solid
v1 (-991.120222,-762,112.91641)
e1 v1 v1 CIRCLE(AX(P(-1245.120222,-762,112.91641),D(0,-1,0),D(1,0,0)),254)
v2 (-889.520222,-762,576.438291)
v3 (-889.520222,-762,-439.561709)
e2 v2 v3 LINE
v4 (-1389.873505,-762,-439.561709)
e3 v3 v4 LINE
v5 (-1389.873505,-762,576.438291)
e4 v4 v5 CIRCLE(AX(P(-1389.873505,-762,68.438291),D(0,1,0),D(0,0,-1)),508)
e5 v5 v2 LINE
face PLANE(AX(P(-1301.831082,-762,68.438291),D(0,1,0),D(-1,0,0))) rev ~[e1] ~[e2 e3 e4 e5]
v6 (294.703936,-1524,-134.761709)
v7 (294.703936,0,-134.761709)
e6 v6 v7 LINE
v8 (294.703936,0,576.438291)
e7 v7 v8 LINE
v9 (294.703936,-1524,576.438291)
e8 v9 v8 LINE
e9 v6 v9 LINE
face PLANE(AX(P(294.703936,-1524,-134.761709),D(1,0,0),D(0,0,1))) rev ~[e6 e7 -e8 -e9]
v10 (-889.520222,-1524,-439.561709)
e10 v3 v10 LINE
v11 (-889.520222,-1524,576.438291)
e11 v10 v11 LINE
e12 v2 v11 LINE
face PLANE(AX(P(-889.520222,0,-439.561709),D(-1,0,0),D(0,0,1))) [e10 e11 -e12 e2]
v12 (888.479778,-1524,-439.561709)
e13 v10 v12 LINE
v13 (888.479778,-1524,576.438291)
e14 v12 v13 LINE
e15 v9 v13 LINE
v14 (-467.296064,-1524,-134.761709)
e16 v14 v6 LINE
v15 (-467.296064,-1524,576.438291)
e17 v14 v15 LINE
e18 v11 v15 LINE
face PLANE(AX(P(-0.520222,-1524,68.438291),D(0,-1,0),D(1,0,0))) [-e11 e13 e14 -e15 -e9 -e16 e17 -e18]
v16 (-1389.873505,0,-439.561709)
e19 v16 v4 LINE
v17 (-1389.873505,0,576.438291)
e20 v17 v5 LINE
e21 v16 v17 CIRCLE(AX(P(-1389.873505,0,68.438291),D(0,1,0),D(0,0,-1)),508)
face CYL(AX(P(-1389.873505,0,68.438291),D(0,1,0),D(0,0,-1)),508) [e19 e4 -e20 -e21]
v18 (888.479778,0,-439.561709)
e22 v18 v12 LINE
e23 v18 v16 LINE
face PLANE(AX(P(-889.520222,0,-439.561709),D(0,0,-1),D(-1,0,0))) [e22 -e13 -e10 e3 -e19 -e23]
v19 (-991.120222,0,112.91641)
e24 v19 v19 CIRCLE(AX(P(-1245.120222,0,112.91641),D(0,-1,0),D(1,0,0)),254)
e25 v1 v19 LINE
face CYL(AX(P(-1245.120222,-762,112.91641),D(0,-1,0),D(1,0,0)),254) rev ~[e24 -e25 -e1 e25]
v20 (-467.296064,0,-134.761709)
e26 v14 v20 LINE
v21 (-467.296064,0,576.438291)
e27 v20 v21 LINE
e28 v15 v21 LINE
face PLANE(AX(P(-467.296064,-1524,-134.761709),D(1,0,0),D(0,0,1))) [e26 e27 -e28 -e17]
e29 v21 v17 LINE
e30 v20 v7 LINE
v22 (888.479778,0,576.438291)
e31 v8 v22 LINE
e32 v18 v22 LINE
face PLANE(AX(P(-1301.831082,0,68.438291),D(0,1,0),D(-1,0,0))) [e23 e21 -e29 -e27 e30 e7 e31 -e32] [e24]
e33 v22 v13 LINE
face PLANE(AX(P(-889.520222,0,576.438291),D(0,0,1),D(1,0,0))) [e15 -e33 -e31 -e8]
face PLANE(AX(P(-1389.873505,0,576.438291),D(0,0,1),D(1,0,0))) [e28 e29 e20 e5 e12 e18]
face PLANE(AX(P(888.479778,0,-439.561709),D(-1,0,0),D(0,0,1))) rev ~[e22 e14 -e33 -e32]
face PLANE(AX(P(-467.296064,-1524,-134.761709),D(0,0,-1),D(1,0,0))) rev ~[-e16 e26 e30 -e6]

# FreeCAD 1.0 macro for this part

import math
import FreeCAD as App
import Part
import Sketcher

V = App.Vector
Q = App.Units.Quantity

doc = App.newDocument("Part")
params = doc.addObject("Spreadsheet::Sheet", "Params")
for row, (alias, value) in enumerate([
    ("sketch1_width", "70 in"),
    ("sketch1_height", "40 in"),
    ("pad1_length", "60 in"),
    ("sketch2_width", "30 in"),
    ("sketch2_height", "28 in"),
    ("pocket1_length", "60 in"),
    ("sketch3_radius", "20 in"),
    ("pad2_length", "30 in"),
    ("sketch4_diameter", "20 in"),
    ("pocket2_length", "30 in"),
], start=1):
    params.set(f"A{row}", alias)
    params.set(f"B{row}", "=" + value)
    params.setAlias(f"B{row}", alias)

body = doc.addObject("PartDesign::Body", "Body")

# Sketch on XZ plane
sketch1 = body.newObject("Sketcher::SketchObject", "Sketch")
sketch1.AttachmentSupport = (doc.getObject("XZ_Plane"), [""])
sketch1.MapMode = "FlatFace"
sketch1.addGeometry(Part.LineSegment(V(-889.520222, 576.438291, 0), V(-889.520222, -439.561709, 0)), False)
sketch1.addGeometry(Part.LineSegment(V(-889.520222, -439.561709, 0), V(888.479778, -439.561709, 0)), False)
sketch1.addGeometry(Part.LineSegment(V(888.479778, -439.561709, 0), V(888.479778, 576.438291, 0)), False)
sketch1.addGeometry(Part.LineSegment(V(888.479778, 576.438291, 0), V(-889.520222, 576.438291, 0)), False)
sketch1.addConstraint(Sketcher.Constraint("Coincident", 0, 2, 1, 1))
sketch1.addConstraint(Sketcher.Constraint("Coincident", 1, 2, 2, 1))
sketch1.addConstraint(Sketcher.Constraint("Coincident", 2, 2, 3, 1))
sketch1.addConstraint(Sketcher.Constraint("Coincident", 3, 2, 0, 1))
sketch1.addConstraint(Sketcher.Constraint("Vertical", 0))
sketch1.addConstraint(Sketcher.Constraint("Horizontal", 1))
sketch1.addConstraint(Sketcher.Constraint("Vertical", 2))
sketch1.addConstraint(Sketcher.Constraint("Horizontal", 3))
sketch1.addConstraint(Sketcher.Constraint("DistanceX", 1, 1, 1, 2, Q("70 in")))
sketch1.addConstraint(Sketcher.Constraint("DistanceY", 0, 2, 0, 1, Q("40 in")))
sketch1.addConstraint(Sketcher.Constraint("DistanceX", 0, 2, -1, 1, Q("889.520222 mm")))
sketch1.addConstraint(Sketcher.Constraint("DistanceY", 0, 2, -1, 1, Q("439.561709 mm")))
sketch1.setExpression("Constraints[8]", "Params.sketch1_width")
sketch1.setExpression("Constraints[9]", "Params.sketch1_height")
pad1 = body.newObject("PartDesign::Pad", "Pad")
pad1.Profile = sketch1
pad1.setExpression("Length", "Params.pad1_length")

# Sketch on XZ plane
sketch2 = body.newObject("Sketcher::SketchObject", "Sketch001")
sketch2.AttachmentSupport = (doc.getObject("XZ_Plane"), [""])
sketch2.MapMode = "FlatFace"
sketch2.AttachmentOffset = App.Placement(V(0, 0, 60 * 25.4), App.Rotation())
sketch2.addGeometry(Part.LineSegment(V(-467.296064, 576.438291, 0), V(-467.296064, -134.761709, 0)), False)
sketch2.addGeometry(Part.LineSegment(V(-467.296064, -134.761709, 0), V(294.703936, -134.761709, 0)), False)
sketch2.addGeometry(Part.LineSegment(V(294.703936, -134.761709, 0), V(294.703936, 576.438291, 0)), False)
sketch2.addGeometry(Part.LineSegment(V(294.703936, 576.438291, 0), V(-467.296064, 576.438291, 0)), False)
sketch2.addConstraint(Sketcher.Constraint("Coincident", 0, 2, 1, 1))
sketch2.addConstraint(Sketcher.Constraint("Coincident", 1, 2, 2, 1))
sketch2.addConstraint(Sketcher.Constraint("Coincident", 2, 2, 3, 1))
sketch2.addConstraint(Sketcher.Constraint("Coincident", 3, 2, 0, 1))
sketch2.addConstraint(Sketcher.Constraint("Vertical", 0))
sketch2.addConstraint(Sketcher.Constraint("Horizontal", 1))
sketch2.addConstraint(Sketcher.Constraint("Vertical", 2))
sketch2.addConstraint(Sketcher.Constraint("Horizontal", 3))
sketch2.addConstraint(Sketcher.Constraint("DistanceX", 1, 1, 1, 2, Q("30 in")))
sketch2.addConstraint(Sketcher.Constraint("DistanceY", 0, 2, 0, 1, Q("28 in")))
sketch2.addConstraint(Sketcher.Constraint("DistanceY", 0, 2, -1, 1, Q("134.761709 mm")))
sketch2.addConstraint(Sketcher.Constraint("DistanceX", 0, 2, -1, 1, Q("467.296064 mm")))
sketch2.setExpression("Constraints[8]", "Params.sketch2_width")
sketch2.setExpression("Constraints[9]", "Params.sketch2_height")
pocket1 = body.newObject("PartDesign::Pocket", "Pocket")
pocket1.Profile = sketch2
pocket1.setExpression("Length", "Params.pocket1_length")

# Sketch on XZ plane
sketch3 = body.newObject("Sketcher::SketchObject", "Sketch002")
sketch3.AttachmentSupport = (doc.getObject("XZ_Plane"), [""])
sketch3.MapMode = "FlatFace"
sketch3.addGeometry(Part.LineSegment(V(-1389.873505, 576.438291, 0), V(-889.520222, 576.438291, 0)), False)
sketch3.addGeometry(Part.LineSegment(V(-889.520222, 576.438291, 0), V(-889.520222, -439.561709, 0)), False)
sketch3.addGeometry(Part.LineSegment(V(-889.520222, -439.561709, 0), V(-1389.873505, -439.561709, 0)), False)
sketch3.addGeometry(Part.ArcOfCircle(Part.Circle(V(-1389.873505, 68.438291, 0), V(0, 0, 1), 508), math.radians(90), math.radians(270)), False)
sketch3.addConstraint(Sketcher.Constraint("Coincident", 0, 2, 1, 1))
sketch3.addConstraint(Sketcher.Constraint("Coincident", 1, 2, 2, 1))
sketch3.addConstraint(Sketcher.Constraint("Tangent", 2, 2, 3, 2))
sketch3.addConstraint(Sketcher.Constraint("Tangent", 3, 1, 0, 1))
sketch3.addConstraint(Sketcher.Constraint("Horizontal", 0))
sketch3.addConstraint(Sketcher.Constraint("Vertical", 1))
sketch3.addConstraint(Sketcher.Constraint("Horizontal", 2))
sketch3.addConstraint(Sketcher.Constraint("Radius", 3, Q("20 in")))
sketch3.addConstraint(Sketcher.Constraint("DistanceX", 0, 1, 0, 2, Q("500.353283 mm")))
sketch3.addConstraint(Sketcher.Constraint("DistanceY", -1, 1, 3, 3, Q("68.438291 mm")))
sketch3.addConstraint(Sketcher.Constraint("DistanceX", 0, 2, -1, 1, Q("889.520222 mm")))
sketch3.setExpression("Constraints[7]", "Params.sketch3_radius")
pad2 = body.newObject("PartDesign::Pad", "Pad001")
pad2.Profile = sketch3
pad2.setExpression("Length", "Params.pad2_length")

# Sketch on XZ plane
sketch4 = body.newObject("Sketcher::SketchObject", "Sketch003")
sketch4.AttachmentSupport = (doc.getObject("XZ_Plane"), [""])
sketch4.MapMode = "FlatFace"
sketch4.AttachmentOffset = App.Placement(V(0, 0, 30 * 25.4), App.Rotation())
sketch4.addGeometry(Part.Circle(V(-1245.120222, 112.91641, 0), V(0, 0, 1), 254), False)
sketch4.addConstraint(Sketcher.Constraint("Diameter", 0, Q("20 in")))
sketch4.addConstraint(Sketcher.Constraint("DistanceX", 0, 3, -1, 1, Q("1245.120222 mm")))
sketch4.addConstraint(Sketcher.Constraint("DistanceY", -1, 1, 0, 3, Q("112.91641 mm")))
sketch4.setExpression("Constraints[0]", "Params.sketch4_diameter")
pocket2 = body.newObject("PartDesign::Pocket", "Pocket001")
pocket2.Profile = sketch4
pocket2.setExpression("Length", "Params.pocket2_length")

doc.recompute()
